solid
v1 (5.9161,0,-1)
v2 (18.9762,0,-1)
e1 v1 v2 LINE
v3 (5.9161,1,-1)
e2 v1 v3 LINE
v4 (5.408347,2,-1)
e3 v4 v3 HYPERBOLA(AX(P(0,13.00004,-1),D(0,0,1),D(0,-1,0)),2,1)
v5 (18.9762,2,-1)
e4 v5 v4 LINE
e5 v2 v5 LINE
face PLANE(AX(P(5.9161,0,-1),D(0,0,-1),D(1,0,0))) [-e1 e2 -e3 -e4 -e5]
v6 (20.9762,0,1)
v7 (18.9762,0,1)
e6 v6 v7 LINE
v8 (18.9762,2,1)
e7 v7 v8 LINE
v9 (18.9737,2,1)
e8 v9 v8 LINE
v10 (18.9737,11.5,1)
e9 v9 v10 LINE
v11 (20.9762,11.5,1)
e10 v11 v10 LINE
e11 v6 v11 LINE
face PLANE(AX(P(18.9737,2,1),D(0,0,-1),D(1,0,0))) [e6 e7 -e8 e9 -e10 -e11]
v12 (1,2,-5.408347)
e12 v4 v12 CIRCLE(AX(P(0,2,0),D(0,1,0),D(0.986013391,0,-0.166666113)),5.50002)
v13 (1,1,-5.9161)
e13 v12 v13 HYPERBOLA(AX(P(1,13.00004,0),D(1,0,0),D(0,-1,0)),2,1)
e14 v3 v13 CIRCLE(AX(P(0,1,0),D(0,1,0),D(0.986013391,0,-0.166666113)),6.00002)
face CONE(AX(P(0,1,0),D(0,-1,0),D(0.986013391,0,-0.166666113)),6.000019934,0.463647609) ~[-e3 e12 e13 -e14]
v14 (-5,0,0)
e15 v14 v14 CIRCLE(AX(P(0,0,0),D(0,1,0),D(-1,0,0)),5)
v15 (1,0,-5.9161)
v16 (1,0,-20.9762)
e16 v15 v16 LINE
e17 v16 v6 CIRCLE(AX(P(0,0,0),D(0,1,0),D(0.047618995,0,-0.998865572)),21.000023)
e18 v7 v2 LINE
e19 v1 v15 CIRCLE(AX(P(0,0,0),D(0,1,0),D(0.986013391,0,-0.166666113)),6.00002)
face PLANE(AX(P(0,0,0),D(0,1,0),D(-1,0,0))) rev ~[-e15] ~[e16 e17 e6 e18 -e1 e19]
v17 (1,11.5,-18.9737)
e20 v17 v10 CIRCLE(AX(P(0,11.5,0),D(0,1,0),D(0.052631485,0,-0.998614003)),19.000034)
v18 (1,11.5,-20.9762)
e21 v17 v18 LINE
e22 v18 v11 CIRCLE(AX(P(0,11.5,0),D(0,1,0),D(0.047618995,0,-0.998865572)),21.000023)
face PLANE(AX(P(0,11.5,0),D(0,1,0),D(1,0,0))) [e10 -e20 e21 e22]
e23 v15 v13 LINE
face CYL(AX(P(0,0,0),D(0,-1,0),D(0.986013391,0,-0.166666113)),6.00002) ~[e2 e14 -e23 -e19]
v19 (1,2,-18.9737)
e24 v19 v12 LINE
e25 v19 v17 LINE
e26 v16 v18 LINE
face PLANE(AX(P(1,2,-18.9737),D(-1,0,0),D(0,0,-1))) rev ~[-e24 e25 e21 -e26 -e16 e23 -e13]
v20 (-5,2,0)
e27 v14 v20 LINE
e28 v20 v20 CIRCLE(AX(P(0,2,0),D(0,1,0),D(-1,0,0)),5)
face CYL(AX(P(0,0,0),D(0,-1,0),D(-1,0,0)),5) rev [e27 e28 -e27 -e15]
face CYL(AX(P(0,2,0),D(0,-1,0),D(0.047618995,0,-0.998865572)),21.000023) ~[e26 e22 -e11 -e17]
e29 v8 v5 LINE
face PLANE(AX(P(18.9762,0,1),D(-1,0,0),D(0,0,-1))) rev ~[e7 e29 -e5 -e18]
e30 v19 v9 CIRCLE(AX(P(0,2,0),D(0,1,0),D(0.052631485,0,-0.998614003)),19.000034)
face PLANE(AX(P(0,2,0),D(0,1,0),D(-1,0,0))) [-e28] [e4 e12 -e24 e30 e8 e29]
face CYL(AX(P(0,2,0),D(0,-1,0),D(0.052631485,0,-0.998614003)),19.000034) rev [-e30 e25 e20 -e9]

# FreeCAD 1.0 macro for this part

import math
import FreeCAD as App
import Part
import Sketcher


def edges_at(feature, points):
    """Names of the edges that pass closest to the given points."""
    edges = feature.Shape.Edges
    near = lambda p: min(range(len(edges)), key=lambda i: edges[i].distToShape(Part.Vertex(*p))[0])
    return sorted({f"Edge{near(p) + 1}" for p in points})

doc = App.newDocument("Part")
params = doc.addObject("Spreadsheet::Sheet", "Params")
for row, (alias, value) in enumerate([
    ("sketch1_diameter", "10 mm"),
    ("sketch1_radius", "21 mm"),
    ("sketch1_width", "2 mm"),
    ("sketch1_radius2", "6 mm"),
    ("pad1_length", "2 mm"),
    ("chamfer_size", "0.5 mm"),
    ("chamfer_size2", "1 mm"),
    ("sketch2_radius", "21 mm"),
    ("sketch2_radius2", "19 mm"),
    ("pad2_length", "9.5 mm"),
], start=1):
    params.set(f"A{row}", alias)
    params.set(f"B{row}", "=" + value)
    params.setAlias(f"B{row}", alias)

body = doc.addObject("PartDesign::Body", "Body")

sketch1 = body.newObject("Sketcher::SketchObject", "Sketch")
sketch1.AttachmentSupport = (doc.getObject("XZ_Plane"), [""])
sketch1.MapMode = "FlatFace"
sketch1.addGeometry([
    Part.LineSegment(App.Vector(1, -5.9161, 0), App.Vector(1, -20.9762, 0)),
    Part.ArcOfCircle(Part.Circle(App.Vector(0, 0, 0), App.Vector(0, 0, 1), 21.000023), math.radians(2.7294), math.radians(272.7294)),
    Part.LineSegment(App.Vector(20.9762, 1, 0), App.Vector(18.9762, 1, 0)),
    Part.LineSegment(App.Vector(18.9762, 1, 0), App.Vector(18.9762, -1, 0)),
    Part.LineSegment(App.Vector(18.9762, -1, 0), App.Vector(5.9161, -1, 0)),
    Part.ArcOfCircle(Part.Circle(App.Vector(0, 0, 0), App.Vector(0, 0, 1), 6.00002), math.radians(-80.405964), math.radians(-9.594036)),
    Part.Circle(App.Vector(0, 0, 0), App.Vector(0, 0, 1), 5),
], False)
sketch1.addConstraint([
    Sketcher.Constraint("Coincident", 0, 2, 1, 2),
    Sketcher.Constraint("Coincident", 1, 1, 2, 1),
    Sketcher.Constraint("Coincident", 2, 2, 3, 1),
    Sketcher.Constraint("Coincident", 3, 2, 4, 1),
    Sketcher.Constraint("Coincident", 4, 2, 5, 2),
    Sketcher.Constraint("Coincident", 5, 1, 0, 1),
    Sketcher.Constraint("Vertical", 0),
    Sketcher.Constraint("Horizontal", 2),
    Sketcher.Constraint("Vertical", 3),
    Sketcher.Constraint("Horizontal", 4),
    Sketcher.Constraint("Coincident", 1, 3, -1, 1),
    Sketcher.Constraint("Coincident", 5, 3, -1, 1),
    Sketcher.Constraint("Coincident", 6, 3, -1, 1),
    Sketcher.Constraint("Equal", 2, 3),
    Sketcher.Constraint("Diameter", 6, 10.0),
    Sketcher.Constraint("Radius", 1, 21.0),
    Sketcher.Constraint("DistanceX", 2, 2, 2, 1, 2.0),
    Sketcher.Constraint("Radius", 5, 6.0),
    Sketcher.Constraint("DistanceX", -1, 1, 0, 2, 1.0),
    Sketcher.Constraint("DistanceY", -1, 1, 1, 1, 1.0),
])
sketch1.setExpression("Constraints[14]", "Params.sketch1_diameter")
sketch1.setExpression("Constraints[15]", "Params.sketch1_radius")
sketch1.setExpression("Constraints[16]", "Params.sketch1_width")
sketch1.setExpression("Constraints[17]", "Params.sketch1_radius2")
pad1 = body.newObject("PartDesign::Pad", "Pad")
pad1.Profile = sketch1
pad1.setExpression("Length", "Params.pad1_length")
pad1.Reversed = True
doc.recompute()

chamfer = body.newObject("PartDesign::Chamfer", "Chamfer")
chamfer.Base = (pad1, edges_at(pad1, [(4.243, 2, -4.243)]))
chamfer.ChamferType = "Two distances"
chamfer.setExpression("Size", "Params.chamfer_size")
chamfer.setExpression("Size2", "Params.chamfer_size2")
chamfer.FlipDirection = True

sketch2 = body.newObject("Sketcher::SketchObject", "Sketch001")
sketch2.AttachmentSupport = (doc.getObject("XZ_Plane"), [""])
sketch2.MapMode = "FlatFace"
sketch2.AttachmentOffset = App.Placement(App.Vector(0, 0, -2), App.Rotation())
sketch2.addGeometry([
    Part.LineSegment(App.Vector(1, -18.9737, 0), App.Vector(1, -20.9762, 0)),
    Part.ArcOfCircle(Part.Circle(App.Vector(0, 0, 0), App.Vector(0, 0, 1), 21.000023), math.radians(2.7294), math.radians(272.7294)),
    Part.LineSegment(App.Vector(20.9762, 1, 0), App.Vector(18.9737, 1, 0)),
    Part.ArcOfCircle(Part.Circle(App.Vector(0, 0, 0), App.Vector(0, 0, 1), 19.000034), math.radians(3.016956), math.radians(273.016956)),
], False)
sketch2.addConstraint([
    Sketcher.Constraint("Coincident", 0, 2, 1, 2),
    Sketcher.Constraint("Coincident", 1, 1, 2, 1),
    Sketcher.Constraint("Coincident", 2, 2, 3, 1),
    Sketcher.Constraint("Coincident", 3, 2, 0, 1),
    Sketcher.Constraint("Vertical", 0),
    Sketcher.Constraint("Horizontal", 2),
    Sketcher.Constraint("Coincident", 1, 3, -1, 1),
    Sketcher.Constraint("Coincident", 3, 3, -1, 1),
    Sketcher.Constraint("Equal", 2, 0),
    Sketcher.Constraint("Radius", 1, 21.0),
    Sketcher.Constraint("Radius", 3, 19.0),
    Sketcher.Constraint("DistanceX", -1, 1, 0, 2, 1.0),
])
sketch2.setExpression("Constraints[9]", "Params.sketch2_radius")
sketch2.setExpression("Constraints[10]", "Params.sketch2_radius2")
pad2 = body.newObject("PartDesign::Pad", "Pad001")
pad2.Profile = sketch2
pad2.setExpression("Length", "Params.pad2_length")
pad2.Reversed = True

doc.recompute()
